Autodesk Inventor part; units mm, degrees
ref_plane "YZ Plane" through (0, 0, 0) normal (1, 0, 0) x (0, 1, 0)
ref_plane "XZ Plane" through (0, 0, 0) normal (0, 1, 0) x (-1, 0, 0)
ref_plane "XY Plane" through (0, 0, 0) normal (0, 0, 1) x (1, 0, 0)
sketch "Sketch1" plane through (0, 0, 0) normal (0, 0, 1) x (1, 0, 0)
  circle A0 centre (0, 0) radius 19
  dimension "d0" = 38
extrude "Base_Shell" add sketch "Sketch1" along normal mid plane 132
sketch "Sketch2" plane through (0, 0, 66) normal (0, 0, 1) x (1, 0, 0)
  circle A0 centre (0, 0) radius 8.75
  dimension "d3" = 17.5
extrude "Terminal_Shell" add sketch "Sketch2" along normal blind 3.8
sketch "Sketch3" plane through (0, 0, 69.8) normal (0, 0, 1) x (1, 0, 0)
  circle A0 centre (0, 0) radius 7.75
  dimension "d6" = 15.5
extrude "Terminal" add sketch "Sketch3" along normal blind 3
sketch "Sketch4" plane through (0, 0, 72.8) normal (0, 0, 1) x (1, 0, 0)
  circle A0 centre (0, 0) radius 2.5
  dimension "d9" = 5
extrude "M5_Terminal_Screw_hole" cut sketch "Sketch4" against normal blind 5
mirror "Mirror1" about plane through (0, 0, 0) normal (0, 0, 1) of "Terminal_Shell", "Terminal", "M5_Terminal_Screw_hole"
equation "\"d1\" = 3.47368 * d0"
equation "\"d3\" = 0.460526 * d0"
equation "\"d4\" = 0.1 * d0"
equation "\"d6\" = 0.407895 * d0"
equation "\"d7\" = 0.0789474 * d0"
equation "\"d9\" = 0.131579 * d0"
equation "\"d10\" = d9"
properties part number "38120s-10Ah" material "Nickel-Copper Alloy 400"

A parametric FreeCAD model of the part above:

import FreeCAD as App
import Part
import Sketcher
Q = App.Units.Quantity

doc = App.newDocument("Part")
body = doc.addObject("PartDesign::Body", "Body")

sketch1 = body.newObject("Sketcher::SketchObject", "Sketch")
sketch1.AttachmentSupport = (doc.getObject("XY_Plane"), [""])
sketch1.MapMode = "FlatFace"
sketch1.addGeometry(Part.Circle(App.Vector(0, 0, 0), App.Vector(0, 0, 1), 19), False)
sketch1.addConstraint([
    Sketcher.Constraint("Coincident", 0, 3, -1, 1),
    Sketcher.Constraint("Diameter", 0, Q("38 mm")),
])
pad1 = body.newObject("PartDesign::Pad", "Pad")
pad1.Profile = sketch1
pad1.Length = 132
pad1.Midplane = True

sketch2 = body.newObject("Sketcher::SketchObject", "Sketch001")
sketch2.AttachmentSupport = (doc.getObject("XY_Plane"), [""])
sketch2.MapMode = "FlatFace"
sketch2.AttachmentOffset = App.Placement(App.Vector(0, 0, 66), App.Rotation())
sketch2.addGeometry(Part.Circle(App.Vector(0, 0, 0), App.Vector(0, 0, 1), 9), False)
sketch2.addConstraint([
    Sketcher.Constraint("Coincident", 0, 3, -1, 1),
    Sketcher.Constraint("Diameter", 0, Q("17.5 mm")),
])
pad2 = body.newObject("PartDesign::Pad", "Pad001")
pad2.Profile = sketch2
pad2.Length = 3.8

sketch3 = body.newObject("Sketcher::SketchObject", "Sketch002")
sketch3.AttachmentSupport = (doc.getObject("XY_Plane"), [""])
sketch3.MapMode = "FlatFace"
sketch3.AttachmentOffset = App.Placement(App.Vector(0, 0, 69.8), App.Rotation())
sketch3.addGeometry(Part.Circle(App.Vector(0, 0, 0), App.Vector(0, 0, 1), 8), False)
sketch3.addConstraint([
    Sketcher.Constraint("Coincident", 0, 3, -1, 1),
    Sketcher.Constraint("Diameter", 0, Q("15.5 mm")),
])
pad3 = body.newObject("PartDesign::Pad", "Pad002")
pad3.Profile = sketch3
pad3.Length = 3

sketch4 = body.newObject("Sketcher::SketchObject", "Sketch003")
sketch4.AttachmentSupport = (doc.getObject("XY_Plane"), [""])
sketch4.MapMode = "FlatFace"
sketch4.AttachmentOffset = App.Placement(App.Vector(0, 0, 72.8), App.Rotation())
sketch4.addGeometry(Part.Circle(App.Vector(0, 0, 0), App.Vector(0, 0, 1), 2.5), False)
sketch4.addConstraint([
    Sketcher.Constraint("Coincident", 0, 3, -1, 1),
    Sketcher.Constraint("Diameter", 0, Q("5 mm")),
])
pocket1 = body.newObject("PartDesign::Pocket", "Pocket")
pocket1.Profile = sketch4
pocket1.Length = 5
doc.recompute()

mirrored = body.newObject("PartDesign::Mirrored", "Mirrored")
mirrored.Originals = [pad2, pad3, pocket1]
mirrored.MirrorPlane = (doc.getObject("XY_Plane"), [""])
body.Tip = mirrored

doc.recompute()
